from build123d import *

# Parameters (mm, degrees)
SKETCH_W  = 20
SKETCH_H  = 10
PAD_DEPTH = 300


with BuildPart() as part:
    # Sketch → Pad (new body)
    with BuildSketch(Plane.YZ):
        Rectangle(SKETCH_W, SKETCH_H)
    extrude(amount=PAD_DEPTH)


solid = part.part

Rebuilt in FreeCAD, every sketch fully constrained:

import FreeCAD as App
import Part
import Sketcher
Q = App.Units.Quantity


def add_polygon(sketch, points):
    """Adds a closed chain of lines whose ends are joined by coincident constraints."""
    first, n = sketch.GeometryCount, len(points)
    for a, b in zip(points, points[1:] + points[:1]):
        sketch.addGeometry(Part.LineSegment(App.Vector(*a, 0), App.Vector(*b, 0)), False)
    for i in range(n):
        sketch.addConstraint(Sketcher.Constraint("Coincident", first + i, 2, first + (i + 1) % n, 1))

doc = App.newDocument("Part")
body = doc.addObject("PartDesign::Body", "Body")

# Sketch on YZ plane
sketch1 = doc.addObject("Sketcher::SketchObject", "Sketch")
body.addObject(sketch1)
sketch1.AttachmentSupport = (doc.YZ_Plane, [""])
sketch1.MapMode = "FlatFace"
add_polygon(sketch1, [(-10, 5), (-10, -5), (10, -5), (10, 5)])  # lines 0-3
sketch1.addConstraint([
    Sketcher.Constraint("Vertical", 0),
    Sketcher.Constraint("Horizontal", 1),
    Sketcher.Constraint("Vertical", 2),
    Sketcher.Constraint("Horizontal", 3),
    Sketcher.Constraint("Symmetric", 0, 2, 2, 2, -1, 1),
    Sketcher.Constraint("DistanceX", 1, 1, 1, 2, Q("20 mm")),
    Sketcher.Constraint("DistanceY", 0, 2, 0, 1, Q("10 mm")),
])
pad1 = doc.addObject("PartDesign::Pad", "Pad")
body.addObject(pad1)
pad1.Profile = sketch1
pad1.Length = 300

doc.recompute()
